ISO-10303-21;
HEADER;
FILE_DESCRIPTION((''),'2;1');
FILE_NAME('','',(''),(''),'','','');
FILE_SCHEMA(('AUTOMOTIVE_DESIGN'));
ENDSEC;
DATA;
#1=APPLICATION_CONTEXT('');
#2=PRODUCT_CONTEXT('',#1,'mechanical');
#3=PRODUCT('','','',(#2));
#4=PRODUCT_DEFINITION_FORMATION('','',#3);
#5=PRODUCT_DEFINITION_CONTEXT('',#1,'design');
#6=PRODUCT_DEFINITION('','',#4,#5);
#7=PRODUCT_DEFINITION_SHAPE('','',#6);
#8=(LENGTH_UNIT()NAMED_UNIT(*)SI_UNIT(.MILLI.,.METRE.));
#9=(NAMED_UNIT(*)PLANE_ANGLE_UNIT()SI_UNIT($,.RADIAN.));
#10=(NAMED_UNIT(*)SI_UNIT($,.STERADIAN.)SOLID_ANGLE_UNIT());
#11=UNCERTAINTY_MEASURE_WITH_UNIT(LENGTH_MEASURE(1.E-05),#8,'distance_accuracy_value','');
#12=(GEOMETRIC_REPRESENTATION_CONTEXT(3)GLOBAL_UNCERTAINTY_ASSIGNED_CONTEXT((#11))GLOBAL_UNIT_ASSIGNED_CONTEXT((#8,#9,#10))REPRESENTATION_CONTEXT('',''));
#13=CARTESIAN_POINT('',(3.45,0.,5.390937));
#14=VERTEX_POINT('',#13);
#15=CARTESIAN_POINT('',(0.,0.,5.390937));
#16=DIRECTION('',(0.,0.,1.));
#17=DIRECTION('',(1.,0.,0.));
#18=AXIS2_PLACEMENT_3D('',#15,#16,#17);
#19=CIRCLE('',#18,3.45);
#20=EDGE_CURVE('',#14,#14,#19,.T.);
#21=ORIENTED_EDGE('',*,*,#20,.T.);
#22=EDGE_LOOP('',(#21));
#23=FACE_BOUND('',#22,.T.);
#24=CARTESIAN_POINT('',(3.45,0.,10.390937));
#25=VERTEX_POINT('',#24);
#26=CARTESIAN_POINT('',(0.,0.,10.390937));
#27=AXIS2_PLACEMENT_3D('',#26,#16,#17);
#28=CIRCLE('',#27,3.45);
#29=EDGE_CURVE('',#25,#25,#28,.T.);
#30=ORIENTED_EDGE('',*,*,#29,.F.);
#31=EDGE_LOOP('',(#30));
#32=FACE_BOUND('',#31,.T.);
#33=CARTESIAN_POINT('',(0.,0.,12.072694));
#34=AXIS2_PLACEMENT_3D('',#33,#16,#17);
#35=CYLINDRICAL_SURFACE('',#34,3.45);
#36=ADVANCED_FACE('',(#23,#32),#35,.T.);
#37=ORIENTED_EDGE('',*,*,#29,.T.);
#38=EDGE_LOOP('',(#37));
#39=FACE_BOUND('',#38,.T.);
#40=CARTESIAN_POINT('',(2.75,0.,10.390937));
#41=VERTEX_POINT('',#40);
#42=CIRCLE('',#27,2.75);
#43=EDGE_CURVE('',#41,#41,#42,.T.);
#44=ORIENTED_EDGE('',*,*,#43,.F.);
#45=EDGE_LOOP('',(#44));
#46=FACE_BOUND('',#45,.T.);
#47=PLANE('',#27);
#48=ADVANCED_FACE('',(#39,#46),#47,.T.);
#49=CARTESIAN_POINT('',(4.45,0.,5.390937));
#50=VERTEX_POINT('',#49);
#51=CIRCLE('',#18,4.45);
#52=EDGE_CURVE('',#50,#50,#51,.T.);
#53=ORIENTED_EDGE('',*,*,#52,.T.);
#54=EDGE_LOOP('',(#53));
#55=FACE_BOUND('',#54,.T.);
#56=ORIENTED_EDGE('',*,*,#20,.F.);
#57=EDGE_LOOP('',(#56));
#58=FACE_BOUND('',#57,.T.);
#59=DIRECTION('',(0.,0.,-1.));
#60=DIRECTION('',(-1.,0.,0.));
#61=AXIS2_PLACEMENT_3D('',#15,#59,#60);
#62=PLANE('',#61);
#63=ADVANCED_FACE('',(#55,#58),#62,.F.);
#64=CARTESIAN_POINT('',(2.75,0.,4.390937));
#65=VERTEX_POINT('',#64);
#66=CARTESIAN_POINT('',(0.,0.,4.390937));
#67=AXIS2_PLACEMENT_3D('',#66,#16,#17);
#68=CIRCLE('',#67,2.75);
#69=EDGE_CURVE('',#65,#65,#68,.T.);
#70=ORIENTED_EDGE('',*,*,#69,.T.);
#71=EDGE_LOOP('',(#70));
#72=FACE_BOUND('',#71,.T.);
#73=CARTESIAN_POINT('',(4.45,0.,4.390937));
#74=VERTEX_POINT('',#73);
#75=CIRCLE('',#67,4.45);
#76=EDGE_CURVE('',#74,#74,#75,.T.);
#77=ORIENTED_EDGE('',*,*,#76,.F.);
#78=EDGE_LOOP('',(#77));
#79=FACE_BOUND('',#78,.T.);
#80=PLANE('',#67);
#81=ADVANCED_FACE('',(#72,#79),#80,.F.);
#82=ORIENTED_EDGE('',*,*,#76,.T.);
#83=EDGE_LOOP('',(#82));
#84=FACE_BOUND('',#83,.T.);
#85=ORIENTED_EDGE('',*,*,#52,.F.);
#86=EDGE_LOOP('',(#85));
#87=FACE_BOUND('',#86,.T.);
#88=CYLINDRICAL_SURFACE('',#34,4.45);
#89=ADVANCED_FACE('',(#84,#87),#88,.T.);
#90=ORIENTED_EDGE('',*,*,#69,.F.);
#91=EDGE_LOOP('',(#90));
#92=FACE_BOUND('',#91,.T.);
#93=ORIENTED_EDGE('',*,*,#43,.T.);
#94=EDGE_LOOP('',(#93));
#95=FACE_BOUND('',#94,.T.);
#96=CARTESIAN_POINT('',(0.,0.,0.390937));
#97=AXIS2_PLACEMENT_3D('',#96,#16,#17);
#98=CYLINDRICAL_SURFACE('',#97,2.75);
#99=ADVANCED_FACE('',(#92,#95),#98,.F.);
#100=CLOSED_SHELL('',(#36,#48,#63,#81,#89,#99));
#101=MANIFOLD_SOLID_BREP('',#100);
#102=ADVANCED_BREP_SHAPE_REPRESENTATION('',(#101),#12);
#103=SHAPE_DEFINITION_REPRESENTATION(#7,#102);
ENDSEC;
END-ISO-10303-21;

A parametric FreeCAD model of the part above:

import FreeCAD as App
import Part
import Sketcher

V = App.Vector

doc = App.newDocument("Part")
body = doc.addObject("PartDesign::Body", "Body")

sketch1 = body.newObject("Sketcher::SketchObject", "Sketch")
sketch1.AttachmentSupport = (doc.getObject("YZ_Plane"), [""])
sketch1.MapMode = "FlatFace"
sketch1.addGeometry(Part.LineSegment(V(3.5, 5.4, 0), V(3.5, 10.4, 0)), False)
sketch1.addGeometry(Part.LineSegment(V(3.5, 10.4, 0), V(0, 10.4, 0)), False)
sketch1.addGeometry(Part.LineSegment(V(0, 10.4, 0), V(0, 4.4, 0)), False)
sketch1.addGeometry(Part.LineSegment(V(0, 4.4, 0), V(4.5, 4.4, 0)), False)
sketch1.addGeometry(Part.LineSegment(V(4.5, 4.4, 0), V(4.5, 5.4, 0)), False)
sketch1.addGeometry(Part.LineSegment(V(4.5, 5.4, 0), V(3.5, 5.4, 0)), False)
sketch1.addConstraint(Sketcher.Constraint("Coincident", 0, 2, 1, 1))
sketch1.addConstraint(Sketcher.Constraint("Coincident", 1, 2, 2, 1))
sketch1.addConstraint(Sketcher.Constraint("Coincident", 2, 2, 3, 1))
sketch1.addConstraint(Sketcher.Constraint("Coincident", 3, 2, 4, 1))
sketch1.addConstraint(Sketcher.Constraint("Coincident", 4, 2, 5, 1))
sketch1.addConstraint(Sketcher.Constraint("Coincident", 5, 2, 0, 1))
sketch1.addConstraint(Sketcher.Constraint("Vertical", 0))
sketch1.addConstraint(Sketcher.Constraint("Horizontal", 1))
sketch1.addConstraint(Sketcher.Constraint("Vertical", 2))
sketch1.addConstraint(Sketcher.Constraint("Horizontal", 3))
sketch1.addConstraint(Sketcher.Constraint("Vertical", 4))
sketch1.addConstraint(Sketcher.Constraint("Horizontal", 5))
sketch1.addConstraint(Sketcher.Constraint("PointOnObject", 1, 2, -2))
sketch1.addConstraint(Sketcher.Constraint("Equal", 5, 4))
sketch1.addConstraint(Sketcher.Constraint("DistanceX", 5, 2, 5, 1, 1.0))
sketch1.addConstraint(Sketcher.Constraint("DistanceY", 0, 1, 0, 2, 5.0))
sketch1.addConstraint(Sketcher.Constraint("DistanceX", 1, 2, 1, 1, 3.45))
sketch1.addConstraint(Sketcher.Constraint("DistanceY", -1, 1, 0, 2, 10.390937))
revolution = body.newObject("PartDesign::Revolution", "Revolution")
revolution.Profile = sketch1
revolution.ReferenceAxis = (sketch1, ["V_Axis"])
revolution.Angle = 360

sketch2 = body.newObject("Sketcher::SketchObject", "Sketch001")
sketch2.AttachmentSupport = (doc.getObject("XY_Plane"), [""])
sketch2.MapMode = "FlatFace"
sketch2.AttachmentOffset = App.Placement(V(0, 0, 10.390937), App.Rotation())
sketch2.addGeometry(Part.Circle(V(0, 0, 0), V(0, 0, 1), 2.8), False)
sketch2.addConstraint(Sketcher.Constraint("Coincident", 0, 3, -1, 1))
sketch2.addConstraint(Sketcher.Constraint("Diameter", 0, 5.5))
pocket1 = body.newObject("PartDesign::Pocket", "Pocket")
pocket1.Profile = sketch2
pocket1.Length = 10

doc.recompute()
